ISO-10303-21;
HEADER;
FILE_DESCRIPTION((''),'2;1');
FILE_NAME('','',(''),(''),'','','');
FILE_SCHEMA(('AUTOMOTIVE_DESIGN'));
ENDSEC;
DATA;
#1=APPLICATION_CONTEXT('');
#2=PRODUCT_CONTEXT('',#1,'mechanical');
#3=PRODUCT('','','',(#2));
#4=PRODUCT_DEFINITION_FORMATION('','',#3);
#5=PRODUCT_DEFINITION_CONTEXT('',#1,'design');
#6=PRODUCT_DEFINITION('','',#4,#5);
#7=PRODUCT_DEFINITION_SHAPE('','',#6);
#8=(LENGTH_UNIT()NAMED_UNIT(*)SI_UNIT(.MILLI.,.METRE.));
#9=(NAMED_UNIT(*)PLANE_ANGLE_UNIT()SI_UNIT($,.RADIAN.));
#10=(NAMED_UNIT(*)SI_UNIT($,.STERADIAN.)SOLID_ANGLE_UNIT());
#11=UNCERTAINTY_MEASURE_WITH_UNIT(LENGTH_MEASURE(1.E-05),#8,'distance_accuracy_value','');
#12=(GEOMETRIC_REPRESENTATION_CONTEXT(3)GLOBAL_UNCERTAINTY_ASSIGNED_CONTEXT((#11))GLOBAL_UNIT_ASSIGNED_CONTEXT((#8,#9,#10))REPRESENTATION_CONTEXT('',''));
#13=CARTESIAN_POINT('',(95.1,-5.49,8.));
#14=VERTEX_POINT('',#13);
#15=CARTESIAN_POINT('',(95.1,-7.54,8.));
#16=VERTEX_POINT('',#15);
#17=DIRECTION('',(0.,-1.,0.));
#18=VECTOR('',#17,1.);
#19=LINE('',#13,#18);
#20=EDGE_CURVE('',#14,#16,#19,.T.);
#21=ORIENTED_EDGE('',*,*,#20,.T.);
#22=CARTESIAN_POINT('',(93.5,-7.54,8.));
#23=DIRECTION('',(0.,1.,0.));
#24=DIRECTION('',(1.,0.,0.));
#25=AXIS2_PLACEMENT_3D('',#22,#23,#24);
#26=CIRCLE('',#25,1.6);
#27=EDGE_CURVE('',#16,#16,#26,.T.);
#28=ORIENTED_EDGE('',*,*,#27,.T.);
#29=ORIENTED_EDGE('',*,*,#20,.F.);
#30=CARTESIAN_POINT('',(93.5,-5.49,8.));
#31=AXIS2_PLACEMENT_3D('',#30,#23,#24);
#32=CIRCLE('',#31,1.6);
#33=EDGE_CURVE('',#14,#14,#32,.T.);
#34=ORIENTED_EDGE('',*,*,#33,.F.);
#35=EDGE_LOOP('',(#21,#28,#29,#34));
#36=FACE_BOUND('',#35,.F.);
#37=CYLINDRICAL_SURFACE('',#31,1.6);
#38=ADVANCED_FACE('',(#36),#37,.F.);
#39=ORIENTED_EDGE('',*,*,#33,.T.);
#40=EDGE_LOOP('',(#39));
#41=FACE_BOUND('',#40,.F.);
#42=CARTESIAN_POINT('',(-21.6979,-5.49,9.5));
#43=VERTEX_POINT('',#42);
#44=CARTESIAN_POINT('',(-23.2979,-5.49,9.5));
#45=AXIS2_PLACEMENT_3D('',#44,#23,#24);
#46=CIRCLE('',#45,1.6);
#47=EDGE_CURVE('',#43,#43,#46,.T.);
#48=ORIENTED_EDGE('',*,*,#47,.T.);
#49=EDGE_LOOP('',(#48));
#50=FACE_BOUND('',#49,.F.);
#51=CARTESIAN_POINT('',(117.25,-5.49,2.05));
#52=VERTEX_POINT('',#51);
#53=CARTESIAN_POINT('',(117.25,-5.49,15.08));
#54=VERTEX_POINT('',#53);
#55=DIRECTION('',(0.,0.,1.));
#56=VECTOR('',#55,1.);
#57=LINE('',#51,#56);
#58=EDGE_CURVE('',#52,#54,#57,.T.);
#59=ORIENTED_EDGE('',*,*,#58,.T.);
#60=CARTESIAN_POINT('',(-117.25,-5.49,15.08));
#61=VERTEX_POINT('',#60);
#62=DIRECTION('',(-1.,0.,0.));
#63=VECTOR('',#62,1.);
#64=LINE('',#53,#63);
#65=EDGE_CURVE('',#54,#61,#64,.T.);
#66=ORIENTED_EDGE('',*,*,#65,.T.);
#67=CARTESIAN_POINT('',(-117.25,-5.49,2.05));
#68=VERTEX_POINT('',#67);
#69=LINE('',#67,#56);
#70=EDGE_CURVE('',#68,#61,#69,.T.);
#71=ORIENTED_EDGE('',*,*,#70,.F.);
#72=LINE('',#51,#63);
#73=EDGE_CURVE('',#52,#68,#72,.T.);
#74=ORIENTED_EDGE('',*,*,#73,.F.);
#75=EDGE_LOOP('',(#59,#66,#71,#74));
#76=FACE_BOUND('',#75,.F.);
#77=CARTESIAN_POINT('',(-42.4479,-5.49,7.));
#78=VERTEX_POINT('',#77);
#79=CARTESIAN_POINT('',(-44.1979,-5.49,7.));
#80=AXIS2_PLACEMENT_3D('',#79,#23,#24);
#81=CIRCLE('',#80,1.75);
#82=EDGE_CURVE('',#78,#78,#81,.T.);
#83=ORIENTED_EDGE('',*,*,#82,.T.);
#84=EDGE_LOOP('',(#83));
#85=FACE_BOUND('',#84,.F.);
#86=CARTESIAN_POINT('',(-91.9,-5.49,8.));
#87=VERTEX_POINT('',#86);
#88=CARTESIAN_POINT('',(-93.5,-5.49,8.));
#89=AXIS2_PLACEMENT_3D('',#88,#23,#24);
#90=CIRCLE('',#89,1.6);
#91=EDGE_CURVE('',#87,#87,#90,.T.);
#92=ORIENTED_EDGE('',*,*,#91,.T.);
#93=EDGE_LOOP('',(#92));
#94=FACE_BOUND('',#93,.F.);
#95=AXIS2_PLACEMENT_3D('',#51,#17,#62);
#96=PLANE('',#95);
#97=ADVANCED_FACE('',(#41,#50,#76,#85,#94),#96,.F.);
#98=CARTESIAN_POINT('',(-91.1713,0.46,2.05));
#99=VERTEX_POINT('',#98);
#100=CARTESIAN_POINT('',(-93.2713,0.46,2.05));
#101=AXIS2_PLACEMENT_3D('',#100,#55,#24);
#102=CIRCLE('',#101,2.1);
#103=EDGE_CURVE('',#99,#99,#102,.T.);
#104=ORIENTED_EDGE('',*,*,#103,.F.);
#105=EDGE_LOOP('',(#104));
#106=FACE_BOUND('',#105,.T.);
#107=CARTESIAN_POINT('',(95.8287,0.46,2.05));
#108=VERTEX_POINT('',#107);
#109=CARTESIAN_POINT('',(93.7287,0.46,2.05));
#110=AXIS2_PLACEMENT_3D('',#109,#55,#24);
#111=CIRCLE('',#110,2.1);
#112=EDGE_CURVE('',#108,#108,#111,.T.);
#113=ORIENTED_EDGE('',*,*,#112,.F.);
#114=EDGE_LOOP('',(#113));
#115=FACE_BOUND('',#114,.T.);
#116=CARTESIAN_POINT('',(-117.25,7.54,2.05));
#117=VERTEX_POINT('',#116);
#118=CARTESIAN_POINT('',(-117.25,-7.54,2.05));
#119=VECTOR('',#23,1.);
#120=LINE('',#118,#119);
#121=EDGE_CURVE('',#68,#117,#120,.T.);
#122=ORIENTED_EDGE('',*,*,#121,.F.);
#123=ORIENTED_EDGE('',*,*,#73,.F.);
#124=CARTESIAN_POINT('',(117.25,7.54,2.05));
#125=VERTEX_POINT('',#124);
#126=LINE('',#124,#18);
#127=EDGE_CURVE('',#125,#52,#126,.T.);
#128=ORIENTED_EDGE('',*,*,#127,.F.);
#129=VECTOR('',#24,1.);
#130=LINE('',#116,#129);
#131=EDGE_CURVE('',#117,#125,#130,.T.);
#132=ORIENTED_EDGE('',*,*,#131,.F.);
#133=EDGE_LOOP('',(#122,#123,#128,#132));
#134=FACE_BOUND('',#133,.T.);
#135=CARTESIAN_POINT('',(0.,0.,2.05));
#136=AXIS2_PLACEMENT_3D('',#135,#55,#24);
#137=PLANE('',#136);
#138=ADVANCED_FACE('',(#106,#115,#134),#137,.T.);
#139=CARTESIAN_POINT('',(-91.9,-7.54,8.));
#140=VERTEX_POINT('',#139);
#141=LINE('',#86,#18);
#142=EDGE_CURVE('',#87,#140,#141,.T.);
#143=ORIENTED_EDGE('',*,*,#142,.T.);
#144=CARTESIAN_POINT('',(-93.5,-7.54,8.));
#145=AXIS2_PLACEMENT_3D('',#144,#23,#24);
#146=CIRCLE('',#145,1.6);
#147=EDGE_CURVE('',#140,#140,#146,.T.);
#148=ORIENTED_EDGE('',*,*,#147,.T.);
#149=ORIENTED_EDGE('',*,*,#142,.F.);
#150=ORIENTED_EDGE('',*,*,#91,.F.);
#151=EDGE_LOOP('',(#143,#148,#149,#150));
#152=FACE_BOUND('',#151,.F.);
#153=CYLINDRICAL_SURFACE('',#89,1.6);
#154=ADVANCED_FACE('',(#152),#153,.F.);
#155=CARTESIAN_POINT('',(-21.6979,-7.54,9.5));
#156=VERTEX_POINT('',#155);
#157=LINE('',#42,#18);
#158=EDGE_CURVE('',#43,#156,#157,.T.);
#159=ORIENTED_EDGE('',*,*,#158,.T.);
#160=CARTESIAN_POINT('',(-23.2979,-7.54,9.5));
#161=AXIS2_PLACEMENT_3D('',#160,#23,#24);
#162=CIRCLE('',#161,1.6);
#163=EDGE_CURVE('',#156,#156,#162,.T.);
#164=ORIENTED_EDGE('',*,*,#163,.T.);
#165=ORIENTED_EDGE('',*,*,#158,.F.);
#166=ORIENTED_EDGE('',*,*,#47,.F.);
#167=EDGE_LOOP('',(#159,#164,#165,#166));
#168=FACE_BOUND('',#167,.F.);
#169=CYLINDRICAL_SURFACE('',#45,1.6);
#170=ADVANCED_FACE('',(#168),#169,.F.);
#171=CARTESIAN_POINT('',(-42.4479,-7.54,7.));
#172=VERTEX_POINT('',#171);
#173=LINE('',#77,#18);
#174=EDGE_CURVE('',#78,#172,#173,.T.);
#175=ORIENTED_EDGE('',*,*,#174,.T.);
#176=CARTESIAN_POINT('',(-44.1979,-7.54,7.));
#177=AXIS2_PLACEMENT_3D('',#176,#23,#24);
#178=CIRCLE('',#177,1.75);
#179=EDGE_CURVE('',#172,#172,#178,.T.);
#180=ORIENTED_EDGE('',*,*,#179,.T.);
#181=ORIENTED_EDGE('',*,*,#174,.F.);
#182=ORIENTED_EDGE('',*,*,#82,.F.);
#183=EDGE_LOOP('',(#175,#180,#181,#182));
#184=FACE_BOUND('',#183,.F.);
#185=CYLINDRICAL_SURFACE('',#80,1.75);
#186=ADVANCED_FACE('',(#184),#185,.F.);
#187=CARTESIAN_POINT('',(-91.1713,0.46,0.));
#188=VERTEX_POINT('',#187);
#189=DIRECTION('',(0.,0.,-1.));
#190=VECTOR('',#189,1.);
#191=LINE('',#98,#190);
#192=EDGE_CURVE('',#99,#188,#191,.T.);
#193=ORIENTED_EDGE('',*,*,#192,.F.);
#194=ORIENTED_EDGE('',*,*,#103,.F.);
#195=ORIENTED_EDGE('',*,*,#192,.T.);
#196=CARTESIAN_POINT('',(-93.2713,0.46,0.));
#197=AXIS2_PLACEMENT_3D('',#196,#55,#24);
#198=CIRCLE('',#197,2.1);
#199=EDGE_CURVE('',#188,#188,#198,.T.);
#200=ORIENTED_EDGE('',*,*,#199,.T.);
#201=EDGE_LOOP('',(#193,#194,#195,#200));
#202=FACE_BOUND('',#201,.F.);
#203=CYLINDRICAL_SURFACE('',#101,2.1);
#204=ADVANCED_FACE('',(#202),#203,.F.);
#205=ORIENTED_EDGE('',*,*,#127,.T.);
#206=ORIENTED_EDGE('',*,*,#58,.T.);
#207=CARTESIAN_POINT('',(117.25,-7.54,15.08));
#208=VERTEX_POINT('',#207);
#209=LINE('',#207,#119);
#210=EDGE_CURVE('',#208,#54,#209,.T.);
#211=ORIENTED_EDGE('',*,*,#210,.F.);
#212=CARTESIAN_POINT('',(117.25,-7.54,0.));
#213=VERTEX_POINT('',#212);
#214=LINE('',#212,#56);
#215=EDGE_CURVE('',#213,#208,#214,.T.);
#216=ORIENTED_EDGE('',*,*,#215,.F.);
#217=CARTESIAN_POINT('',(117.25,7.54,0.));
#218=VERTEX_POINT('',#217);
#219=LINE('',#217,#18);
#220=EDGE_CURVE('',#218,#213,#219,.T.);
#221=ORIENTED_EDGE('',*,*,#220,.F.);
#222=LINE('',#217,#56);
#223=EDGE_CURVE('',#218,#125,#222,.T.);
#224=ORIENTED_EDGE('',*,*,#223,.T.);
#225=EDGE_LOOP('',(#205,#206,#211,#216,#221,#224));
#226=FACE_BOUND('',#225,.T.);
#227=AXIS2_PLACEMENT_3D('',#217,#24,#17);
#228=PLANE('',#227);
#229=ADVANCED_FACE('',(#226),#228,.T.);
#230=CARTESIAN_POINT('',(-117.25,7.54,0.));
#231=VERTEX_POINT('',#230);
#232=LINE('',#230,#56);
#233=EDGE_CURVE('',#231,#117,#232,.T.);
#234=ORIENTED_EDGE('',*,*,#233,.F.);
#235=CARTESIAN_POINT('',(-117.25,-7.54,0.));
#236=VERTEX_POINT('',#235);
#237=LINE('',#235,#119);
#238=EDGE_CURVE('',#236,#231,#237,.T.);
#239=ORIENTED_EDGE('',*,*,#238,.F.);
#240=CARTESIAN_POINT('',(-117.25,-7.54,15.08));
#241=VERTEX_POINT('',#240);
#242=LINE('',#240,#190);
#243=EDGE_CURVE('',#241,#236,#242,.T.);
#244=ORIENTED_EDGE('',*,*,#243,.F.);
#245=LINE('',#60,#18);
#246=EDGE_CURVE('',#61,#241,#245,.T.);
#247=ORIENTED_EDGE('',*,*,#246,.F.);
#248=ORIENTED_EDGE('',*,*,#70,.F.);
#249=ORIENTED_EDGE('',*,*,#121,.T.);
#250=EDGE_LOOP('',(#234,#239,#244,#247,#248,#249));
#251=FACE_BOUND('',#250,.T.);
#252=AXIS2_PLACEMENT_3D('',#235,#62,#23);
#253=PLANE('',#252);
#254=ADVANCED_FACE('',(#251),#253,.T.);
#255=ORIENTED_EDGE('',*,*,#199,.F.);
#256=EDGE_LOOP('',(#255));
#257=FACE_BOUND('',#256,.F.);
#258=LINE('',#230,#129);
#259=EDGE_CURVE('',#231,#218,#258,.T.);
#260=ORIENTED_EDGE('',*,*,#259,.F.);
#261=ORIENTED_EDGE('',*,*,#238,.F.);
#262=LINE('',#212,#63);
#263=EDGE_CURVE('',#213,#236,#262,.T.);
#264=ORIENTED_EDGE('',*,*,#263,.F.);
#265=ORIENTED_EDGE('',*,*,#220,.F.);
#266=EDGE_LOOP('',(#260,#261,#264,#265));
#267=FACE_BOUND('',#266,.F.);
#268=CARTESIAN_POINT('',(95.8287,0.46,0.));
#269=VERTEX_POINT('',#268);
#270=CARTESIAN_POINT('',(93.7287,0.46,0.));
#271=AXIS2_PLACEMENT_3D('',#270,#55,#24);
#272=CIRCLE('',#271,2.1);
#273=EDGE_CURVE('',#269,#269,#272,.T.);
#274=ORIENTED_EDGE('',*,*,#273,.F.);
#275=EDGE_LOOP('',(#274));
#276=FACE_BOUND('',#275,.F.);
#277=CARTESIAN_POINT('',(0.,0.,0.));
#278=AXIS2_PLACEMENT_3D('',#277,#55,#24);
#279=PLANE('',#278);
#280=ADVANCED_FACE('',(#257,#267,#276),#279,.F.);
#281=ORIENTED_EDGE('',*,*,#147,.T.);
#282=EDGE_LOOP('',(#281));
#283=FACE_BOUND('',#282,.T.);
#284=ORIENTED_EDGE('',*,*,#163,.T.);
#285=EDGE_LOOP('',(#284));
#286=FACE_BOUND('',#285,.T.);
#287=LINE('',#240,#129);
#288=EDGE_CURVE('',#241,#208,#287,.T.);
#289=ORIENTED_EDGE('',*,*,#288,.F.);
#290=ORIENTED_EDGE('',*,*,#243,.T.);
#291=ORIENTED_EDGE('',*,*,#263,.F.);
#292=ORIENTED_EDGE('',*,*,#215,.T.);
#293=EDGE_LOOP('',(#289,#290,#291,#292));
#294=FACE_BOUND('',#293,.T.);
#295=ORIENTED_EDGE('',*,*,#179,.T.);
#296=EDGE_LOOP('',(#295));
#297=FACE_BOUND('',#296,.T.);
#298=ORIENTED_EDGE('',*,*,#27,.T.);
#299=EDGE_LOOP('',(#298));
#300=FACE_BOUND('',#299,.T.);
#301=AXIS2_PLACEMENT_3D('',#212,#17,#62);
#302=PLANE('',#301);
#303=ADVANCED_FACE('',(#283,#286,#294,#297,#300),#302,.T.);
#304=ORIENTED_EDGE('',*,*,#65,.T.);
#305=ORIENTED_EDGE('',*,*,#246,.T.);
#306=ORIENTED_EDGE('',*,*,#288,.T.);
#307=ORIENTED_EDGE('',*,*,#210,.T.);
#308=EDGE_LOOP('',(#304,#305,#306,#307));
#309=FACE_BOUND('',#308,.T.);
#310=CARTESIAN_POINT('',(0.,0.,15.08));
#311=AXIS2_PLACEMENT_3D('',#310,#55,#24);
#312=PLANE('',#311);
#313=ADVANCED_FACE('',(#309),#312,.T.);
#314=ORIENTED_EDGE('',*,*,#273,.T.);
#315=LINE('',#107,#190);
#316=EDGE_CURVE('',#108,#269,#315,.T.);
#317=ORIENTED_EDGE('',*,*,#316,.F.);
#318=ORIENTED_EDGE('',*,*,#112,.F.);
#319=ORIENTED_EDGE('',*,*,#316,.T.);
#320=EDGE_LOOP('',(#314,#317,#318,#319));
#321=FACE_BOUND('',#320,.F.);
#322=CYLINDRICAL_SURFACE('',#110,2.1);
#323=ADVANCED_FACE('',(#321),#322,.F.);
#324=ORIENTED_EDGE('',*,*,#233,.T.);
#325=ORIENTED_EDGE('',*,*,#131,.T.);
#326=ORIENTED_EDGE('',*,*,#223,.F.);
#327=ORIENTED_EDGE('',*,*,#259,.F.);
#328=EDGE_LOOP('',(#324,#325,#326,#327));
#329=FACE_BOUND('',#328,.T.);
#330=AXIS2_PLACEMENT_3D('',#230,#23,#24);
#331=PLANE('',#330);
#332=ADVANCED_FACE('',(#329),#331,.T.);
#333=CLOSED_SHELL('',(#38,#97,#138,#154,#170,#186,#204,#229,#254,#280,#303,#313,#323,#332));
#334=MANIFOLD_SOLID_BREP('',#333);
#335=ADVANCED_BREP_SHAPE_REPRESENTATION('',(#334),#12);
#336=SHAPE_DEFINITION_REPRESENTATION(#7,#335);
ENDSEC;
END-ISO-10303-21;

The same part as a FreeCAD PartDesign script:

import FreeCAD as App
import Part
import Sketcher
from FreeCAD import Vector
Q = App.Units.Quantity


def add_polygon(sketch, points):
    """Adds a closed chain of lines whose ends are joined by coincident constraints."""
    first, n = sketch.GeometryCount, len(points)
    for a, b in zip(points, points[1:] + points[:1]):
        sketch.addGeometry(Part.LineSegment(App.Vector(*a, 0), App.Vector(*b, 0)), False)
    for i in range(n):
        sketch.addConstraint(Sketcher.Constraint("Coincident", first + i, 2, first + (i + 1) % n, 1))

doc = App.newDocument("Part")
body = doc.addObject("PartDesign::Body", "Body")

# Sketch on XY plane
sketch1 = body.newObject("Sketcher::SketchObject", "Sketch")
sketch1.AttachmentSupport = (doc.getObject("XY_Plane"), [""])
sketch1.MapMode = "FlatFace"
add_polygon(sketch1, [(-117.25, -7.54), (117.25, -7.54), (117.25, 7.54), (-117.25, 7.54)])  # lines 0-3
sketch1.addConstraint([
    Sketcher.Constraint("Horizontal", 0),
    Sketcher.Constraint("Vertical", 1),
    Sketcher.Constraint("Horizontal", 2),
    Sketcher.Constraint("Vertical", 3),
    Sketcher.Constraint("Symmetric", 0, 2, 2, 2, -1, 1),
    Sketcher.Constraint("DistanceX", 0, 1, 0, 2, Q("234.5 mm")),
    Sketcher.Constraint("DistanceY", 1, 1, 1, 2, Q("15.08 mm")),
])
pad1 = body.newObject("PartDesign::Pad", "Pad")
pad1.Profile = sketch1
pad1.Length = 2.05

# Sketch on XY plane
sketch2 = body.newObject("Sketcher::SketchObject", "Sketch001")
sketch2.AttachmentSupport = (doc.getObject("XY_Plane"), [""])
sketch2.MapMode = "FlatFace"
sketch2.AttachmentOffset = App.Placement(Vector(0, 0, 2.05), App.Rotation())
add_polygon(sketch2, [(-117.25, -5.49), (-117.25, -7.54), (117.25, -7.54), (117.25, -5.49)])  # lines 0-3
sketch2.addConstraint([
    Sketcher.Constraint("Vertical", 0),
    Sketcher.Constraint("Horizontal", 1),
    Sketcher.Constraint("Vertical", 2),
    Sketcher.Constraint("Horizontal", 3),
    Sketcher.Constraint("DistanceY", 0, 2, 0, 1, Q("2.05 mm")),
    Sketcher.Constraint("DistanceX", 1, 1, 1, 2, Q("234.5 mm")),
    Sketcher.Constraint("DistanceX", 0, 2, -1, 1, Q("117.25 mm")),
    Sketcher.Constraint("DistanceY", 0, 2, -1, 1, Q("7.54 mm")),
])
pad2 = body.newObject("PartDesign::Pad", "Pad001")
pad2.Profile = sketch2
pad2.Length = 13.03

# Sketch on XZ plane
sketch3 = body.newObject("Sketcher::SketchObject", "Sketch002")
sketch3.AttachmentSupport = (doc.getObject("XZ_Plane"), [""])
sketch3.MapMode = "FlatFace"
sketch3.AttachmentOffset = App.Placement(Vector(0, 0, 5.49), App.Rotation())
sketch3.addGeometry([
    Part.Circle(Vector(-93.5, 8, 0), Vector(0, 0, 1), 1.6),
    Part.Circle(Vector(93.5, 8, 0), Vector(0, 0, 1), 1.6),
], False)
sketch3.addConstraint([
    Sketcher.Constraint("Equal", 0, 1),
    Sketcher.Constraint("Symmetric", 0, 3, 1, 3, -2),
    Sketcher.Constraint("Diameter", 0, Q("3.2 mm")),
    Sketcher.Constraint("DistanceY", -1, 1, 0, 3, Q("8 mm")),
    Sketcher.Constraint("DistanceX", 0, 3, -1, 1, Q("93.5 mm")),
])
pocket1 = body.newObject("PartDesign::Pocket", "Pocket")
pocket1.Profile = sketch3
pocket1.Length = 2.05
pocket1.Reversed = True

# Sketch on XZ plane
sketch4 = body.newObject("Sketcher::SketchObject", "Sketch003")
sketch4.AttachmentSupport = (doc.getObject("XZ_Plane"), [""])
sketch4.MapMode = "FlatFace"
sketch4.AttachmentOffset = App.Placement(Vector(0, 0, 5.49), App.Rotation())
sketch4.addGeometry(Part.Circle(Vector(-44.1979, 7, 0), Vector(0, 0, 1), 1.75), False)
sketch4.addConstraint([
    Sketcher.Constraint("Diameter", 0, Q("3.5 mm")),
    Sketcher.Constraint("DistanceY", -1, 1, 0, 3, Q("7 mm")),
    Sketcher.Constraint("DistanceX", 0, 3, -1, 1, Q("44.198 mm")),
])
pocket2 = body.newObject("PartDesign::Pocket", "Pocket001")
pocket2.Profile = sketch4
pocket2.Length = 3
pocket2.Reversed = True

# Sketch on XZ plane
sketch5 = body.newObject("Sketcher::SketchObject", "Sketch004")
sketch5.AttachmentSupport = (doc.getObject("XZ_Plane"), [""])
sketch5.MapMode = "FlatFace"
sketch5.AttachmentOffset = App.Placement(Vector(0, 0, 5.49), App.Rotation())
sketch5.addGeometry(Part.Circle(Vector(-23.2979, 9.5, 0), Vector(0, 0, 1), 1.6), False)
sketch5.addConstraint([
    Sketcher.Constraint("Diameter", 0, Q("3.2 mm")),
    Sketcher.Constraint("DistanceY", -1, 1, 0, 3, Q("9.5 mm")),
    Sketcher.Constraint("DistanceX", 0, 3, -1, 1, Q("23.298 mm")),
])
pocket3 = body.newObject("PartDesign::Pocket", "Pocket002")
pocket3.Profile = sketch5
pocket3.Length = 10
pocket3.Reversed = True

# Sketch on XY plane
sketch6 = body.newObject("Sketcher::SketchObject", "Sketch005")
sketch6.AttachmentSupport = (doc.getObject("XY_Plane"), [""])
sketch6.MapMode = "FlatFace"
sketch6.AttachmentOffset = App.Placement(Vector(0, 0, 2.05), App.Rotation())
sketch6.addGeometry([
    Part.Circle(Vector(-93.2713, 0.46, 0), Vector(0, 0, 1), 2.1),
    Part.Circle(Vector(93.7287, 0.46, 0), Vector(0, 0, 1), 2.1),
], False)
sketch6.addConstraint([
    Sketcher.Constraint("Equal", 0, 1),
    Sketcher.Constraint("Horizontal", 0, 3, 1, 3),
    Sketcher.Constraint("Diameter", 0, Q("4.2 mm")),
    Sketcher.Constraint("DistanceX", 0, 3, 1, 3, Q("187 mm")),
    Sketcher.Constraint("DistanceY", -1, 1, 0, 3, Q("0.46 mm")),
    Sketcher.Constraint("DistanceX", 0, 3, -1, 1, Q("93.2713 mm")),
])
pocket4 = body.newObject("PartDesign::Pocket", "Pocket003")
pocket4.Profile = sketch6
pocket4.Length = 10

doc.recompute()
